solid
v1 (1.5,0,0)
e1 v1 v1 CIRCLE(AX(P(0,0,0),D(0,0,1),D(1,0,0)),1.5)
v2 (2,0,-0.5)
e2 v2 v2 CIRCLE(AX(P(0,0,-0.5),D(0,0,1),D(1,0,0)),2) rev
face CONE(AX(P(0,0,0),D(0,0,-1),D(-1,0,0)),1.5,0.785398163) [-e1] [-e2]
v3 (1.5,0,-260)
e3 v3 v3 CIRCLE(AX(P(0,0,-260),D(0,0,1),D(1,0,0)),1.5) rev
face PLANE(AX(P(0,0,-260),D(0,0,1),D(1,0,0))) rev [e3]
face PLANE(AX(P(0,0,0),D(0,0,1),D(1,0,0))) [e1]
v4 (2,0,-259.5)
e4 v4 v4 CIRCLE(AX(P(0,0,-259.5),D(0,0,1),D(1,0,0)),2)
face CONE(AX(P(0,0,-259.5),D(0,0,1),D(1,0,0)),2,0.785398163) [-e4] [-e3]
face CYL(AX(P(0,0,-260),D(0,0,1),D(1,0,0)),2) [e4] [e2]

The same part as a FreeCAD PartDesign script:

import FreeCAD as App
import Part
import Sketcher
from FreeCAD import Vector
Q = App.Units.Quantity


def edges_at(feature, points):
    """Names of the edges that pass closest to the given points."""
    edges = feature.Shape.Edges
    near = lambda p: min(range(len(edges)), key=lambda i: edges[i].distToShape(Part.Vertex(*p))[0])
    return sorted({f"Edge{near(p) + 1}" for p in points})

doc = App.newDocument("Part")
body = doc.addObject("PartDesign::Body", "Body")

# Sketch on XY plane
sketch1 = doc.addObject("Sketcher::SketchObject", "Sketch")
body.addObject(sketch1)
sketch1.AttachmentSupport = (doc.XY_Plane, [""])
sketch1.MapMode = "FlatFace"
sketch1.addGeometry(Part.Circle(Vector(0, 0, 0), Vector(0, 0, 1), 2), False)
sketch1.addConstraint([
    Sketcher.Constraint("Coincident", 0, 3, -1, 1),
    Sketcher.Constraint("Diameter", 0, Q("4 mm")),
])
pad1 = doc.addObject("PartDesign::Pad", "Pad")
body.addObject(pad1)
pad1.Profile = sketch1
pad1.Length = 260
pad1.Reversed = True
doc.recompute()

chamfer = doc.addObject("PartDesign::Chamfer", "Chamfer")
body.addObject(chamfer)
chamfer.Base = (pad1, edges_at(pad1, [(-2, 0, 0), (-2, 0, -260)]))
chamfer.Size = 0.5

doc.recompute()
